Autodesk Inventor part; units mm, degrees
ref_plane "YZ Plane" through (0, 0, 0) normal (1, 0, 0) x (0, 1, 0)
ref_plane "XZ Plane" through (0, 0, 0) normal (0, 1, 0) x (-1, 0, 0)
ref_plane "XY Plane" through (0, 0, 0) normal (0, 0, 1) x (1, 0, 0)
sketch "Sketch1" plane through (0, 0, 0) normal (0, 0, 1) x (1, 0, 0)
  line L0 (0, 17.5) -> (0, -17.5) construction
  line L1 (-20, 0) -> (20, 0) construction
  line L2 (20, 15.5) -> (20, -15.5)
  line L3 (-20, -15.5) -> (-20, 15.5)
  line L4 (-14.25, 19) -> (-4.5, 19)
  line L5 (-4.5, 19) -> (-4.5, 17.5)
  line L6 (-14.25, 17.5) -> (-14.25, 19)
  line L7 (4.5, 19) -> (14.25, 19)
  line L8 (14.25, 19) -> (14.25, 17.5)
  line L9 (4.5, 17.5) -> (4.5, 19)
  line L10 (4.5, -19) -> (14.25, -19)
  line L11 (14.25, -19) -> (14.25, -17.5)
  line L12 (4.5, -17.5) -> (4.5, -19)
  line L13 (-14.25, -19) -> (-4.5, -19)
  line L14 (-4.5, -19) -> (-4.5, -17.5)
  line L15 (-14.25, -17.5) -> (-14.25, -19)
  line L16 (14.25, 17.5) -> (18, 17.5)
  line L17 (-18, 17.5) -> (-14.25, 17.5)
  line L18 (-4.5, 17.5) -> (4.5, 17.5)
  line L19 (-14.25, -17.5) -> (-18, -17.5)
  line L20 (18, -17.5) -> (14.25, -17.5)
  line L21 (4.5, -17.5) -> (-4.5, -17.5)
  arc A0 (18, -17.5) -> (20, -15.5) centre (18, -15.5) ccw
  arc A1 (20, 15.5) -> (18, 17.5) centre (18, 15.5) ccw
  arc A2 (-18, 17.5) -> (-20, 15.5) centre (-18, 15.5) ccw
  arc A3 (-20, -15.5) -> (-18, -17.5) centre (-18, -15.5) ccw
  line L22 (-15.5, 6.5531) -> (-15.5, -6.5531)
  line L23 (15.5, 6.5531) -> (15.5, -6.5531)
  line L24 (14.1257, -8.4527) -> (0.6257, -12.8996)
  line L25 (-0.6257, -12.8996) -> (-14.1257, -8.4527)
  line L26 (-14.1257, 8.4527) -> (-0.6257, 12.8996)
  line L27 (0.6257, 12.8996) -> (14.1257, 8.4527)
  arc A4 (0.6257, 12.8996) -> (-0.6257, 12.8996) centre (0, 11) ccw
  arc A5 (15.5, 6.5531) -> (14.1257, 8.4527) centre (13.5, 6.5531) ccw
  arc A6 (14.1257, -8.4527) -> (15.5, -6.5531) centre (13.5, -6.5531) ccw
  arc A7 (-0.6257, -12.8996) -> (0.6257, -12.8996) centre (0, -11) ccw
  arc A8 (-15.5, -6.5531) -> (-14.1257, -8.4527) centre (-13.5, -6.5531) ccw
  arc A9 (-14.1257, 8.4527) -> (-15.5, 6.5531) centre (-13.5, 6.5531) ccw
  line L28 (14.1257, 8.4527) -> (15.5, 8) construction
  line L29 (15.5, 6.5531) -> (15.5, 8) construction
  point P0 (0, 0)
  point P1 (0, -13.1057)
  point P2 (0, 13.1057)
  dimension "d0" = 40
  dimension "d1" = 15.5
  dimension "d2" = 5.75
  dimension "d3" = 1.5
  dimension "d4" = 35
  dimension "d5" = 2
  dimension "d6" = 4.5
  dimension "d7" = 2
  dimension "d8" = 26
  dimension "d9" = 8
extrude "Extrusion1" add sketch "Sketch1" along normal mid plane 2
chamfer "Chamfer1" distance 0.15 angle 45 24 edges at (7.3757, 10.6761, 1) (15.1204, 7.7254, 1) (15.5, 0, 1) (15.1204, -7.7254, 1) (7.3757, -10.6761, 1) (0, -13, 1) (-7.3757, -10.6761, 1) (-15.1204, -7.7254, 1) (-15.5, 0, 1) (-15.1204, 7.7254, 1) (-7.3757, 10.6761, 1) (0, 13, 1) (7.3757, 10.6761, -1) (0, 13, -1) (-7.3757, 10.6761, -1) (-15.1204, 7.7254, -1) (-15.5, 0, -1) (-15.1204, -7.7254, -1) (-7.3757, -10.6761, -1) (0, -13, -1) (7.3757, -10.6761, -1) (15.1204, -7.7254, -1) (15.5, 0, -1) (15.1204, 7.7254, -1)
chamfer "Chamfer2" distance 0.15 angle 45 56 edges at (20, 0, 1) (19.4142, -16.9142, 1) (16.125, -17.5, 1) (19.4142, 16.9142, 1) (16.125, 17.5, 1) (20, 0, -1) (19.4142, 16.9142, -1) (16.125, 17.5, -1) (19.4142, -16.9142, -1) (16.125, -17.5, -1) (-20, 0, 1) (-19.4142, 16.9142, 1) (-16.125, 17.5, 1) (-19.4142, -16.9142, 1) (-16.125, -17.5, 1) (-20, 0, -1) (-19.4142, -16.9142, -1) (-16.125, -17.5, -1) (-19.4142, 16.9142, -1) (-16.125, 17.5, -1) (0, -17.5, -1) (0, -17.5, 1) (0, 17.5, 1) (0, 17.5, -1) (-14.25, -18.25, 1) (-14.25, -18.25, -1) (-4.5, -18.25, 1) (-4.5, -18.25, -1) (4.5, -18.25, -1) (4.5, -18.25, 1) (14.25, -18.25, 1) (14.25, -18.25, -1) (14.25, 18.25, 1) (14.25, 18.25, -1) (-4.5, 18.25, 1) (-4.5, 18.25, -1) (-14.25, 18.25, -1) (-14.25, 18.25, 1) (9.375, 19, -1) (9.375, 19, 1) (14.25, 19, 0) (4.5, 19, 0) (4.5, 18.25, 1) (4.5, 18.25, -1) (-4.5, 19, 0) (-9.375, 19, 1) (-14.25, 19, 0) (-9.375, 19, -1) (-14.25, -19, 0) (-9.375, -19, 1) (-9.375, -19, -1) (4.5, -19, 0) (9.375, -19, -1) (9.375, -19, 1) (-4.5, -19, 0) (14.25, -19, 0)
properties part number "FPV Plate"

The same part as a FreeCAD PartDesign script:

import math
import FreeCAD as App
import Part
import Sketcher
from FreeCAD import Vector
Q = App.Units.Quantity


def edges_at(feature, points):
    """Names of the edges that pass closest to the given points."""
    edges = feature.Shape.Edges
    near = lambda p: min(range(len(edges)), key=lambda i: edges[i].distToShape(Part.Vertex(*p))[0])
    return sorted({f"Edge{near(p) + 1}" for p in points})

doc = App.newDocument("Part")
body = doc.addObject("PartDesign::Body", "Body")

sketch1 = doc.addObject("Sketcher::SketchObject", "Sketch")
body.addObject(sketch1)
sketch1.AttachmentSupport = (doc.XY_Plane, [""])
sketch1.MapMode = "FlatFace"
sketch1.addGeometry([
    Part.LineSegment(Vector(20, -15.5, 0), Vector(20, 15.5, 0)),
    Part.ArcOfCircle(Part.Circle(Vector(18, 15.5, 0), Vector(0, 0, 1), 2), math.radians(0), math.radians(90)),
    Part.LineSegment(Vector(18, 17.5, 0), Vector(14.2, 17.5, 0)),
    Part.LineSegment(Vector(14.2, 17.5, 0), Vector(14.2, 19, 0)),
    Part.LineSegment(Vector(14.2, 19, 0), Vector(4.5, 19, 0)),
    Part.LineSegment(Vector(4.5, 19, 0), Vector(4.5, 17.5, 0)),
    Part.LineSegment(Vector(4.5, 17.5, 0), Vector(-4.5, 17.5, 0)),
    Part.LineSegment(Vector(-4.5, 17.5, 0), Vector(-4.5, 19, 0)),
    Part.LineSegment(Vector(-4.5, 19, 0), Vector(-14.2, 19, 0)),
    Part.LineSegment(Vector(-14.2, 19, 0), Vector(-14.2, 17.5, 0)),
    Part.LineSegment(Vector(-14.2, 17.5, 0), Vector(-18, 17.5, 0)),
    Part.ArcOfCircle(Part.Circle(Vector(-18, 15.5, 0), Vector(0, 0, 1), 2), math.radians(90), math.radians(180)),
    Part.LineSegment(Vector(-20, 15.5, 0), Vector(-20, -15.5, 0)),
    Part.ArcOfCircle(Part.Circle(Vector(-18, -15.5, 0), Vector(0, 0, 1), 2), math.radians(180), math.radians(270)),
    Part.LineSegment(Vector(-18, -17.5, 0), Vector(-14.2, -17.5, 0)),
    Part.LineSegment(Vector(-14.2, -17.5, 0), Vector(-14.2, -19, 0)),
    Part.LineSegment(Vector(-14.2, -19, 0), Vector(-4.5, -19, 0)),
    Part.LineSegment(Vector(-4.5, -19, 0), Vector(-4.5, -17.5, 0)),
    Part.LineSegment(Vector(-4.5, -17.5, 0), Vector(4.5, -17.5, 0)),
    Part.LineSegment(Vector(4.5, -17.5, 0), Vector(4.5, -19, 0)),
    Part.LineSegment(Vector(4.5, -19, 0), Vector(14.2, -19, 0)),
    Part.LineSegment(Vector(14.2, -19, 0), Vector(14.2, -17.5, 0)),
    Part.LineSegment(Vector(14.2, -17.5, 0), Vector(18, -17.5, 0)),
    Part.ArcOfCircle(Part.Circle(Vector(18, -15.5, 0), Vector(0, 0, 1), 2), math.radians(-90), math.radians(0)),
    Part.LineSegment(Vector(-15.5, -6.6, 0), Vector(-15.5, 6.6, 0)),
    Part.ArcOfCircle(Part.Circle(Vector(-13.5, 6.6, 0), Vector(0, 0, 1), 2), math.radians(108), math.radians(180)),
    Part.LineSegment(Vector(-14.1, 8.5, 0), Vector(-0.6, 12.9, 0)),
    Part.ArcOfCircle(Part.Circle(Vector(0, 11, 0), Vector(0, 0, 1), 2), math.radians(72), math.radians(108)),
    Part.LineSegment(Vector(0.6, 12.9, 0), Vector(14.1, 8.5, 0)),
    Part.ArcOfCircle(Part.Circle(Vector(13.5, 6.6, 0), Vector(0, 0, 1), 2), math.radians(0), math.radians(72)),
    Part.LineSegment(Vector(15.5, 6.6, 0), Vector(15.5, -6.6, 0)),
    Part.ArcOfCircle(Part.Circle(Vector(13.5, -6.6, 0), Vector(0, 0, 1), 2), math.radians(-72), math.radians(0)),
    Part.LineSegment(Vector(14.1, -8.5, 0), Vector(0.6, -12.9, 0)),
    Part.ArcOfCircle(Part.Circle(Vector(0, -11, 0), Vector(0, 0, 1), 2), math.radians(-108), math.radians(-72)),
    Part.LineSegment(Vector(-0.6, -12.9, 0), Vector(-14.1, -8.5, 0)),
    Part.ArcOfCircle(Part.Circle(Vector(-13.5, -6.6, 0), Vector(0, 0, 1), 2), math.radians(180), math.radians(252)),
], False)
sketch1.addConstraint([
    Sketcher.Constraint("Tangent", 0, 2, 1, 1),
    Sketcher.Constraint("Tangent", 1, 2, 2, 1),
    Sketcher.Constraint("Coincident", 2, 2, 3, 1),
    Sketcher.Constraint("Coincident", 3, 2, 4, 1),
    Sketcher.Constraint("Coincident", 4, 2, 5, 1),
    Sketcher.Constraint("Coincident", 5, 2, 6, 1),
    Sketcher.Constraint("Coincident", 6, 2, 7, 1),
    Sketcher.Constraint("Coincident", 7, 2, 8, 1),
    Sketcher.Constraint("Coincident", 8, 2, 9, 1),
    Sketcher.Constraint("Coincident", 9, 2, 10, 1),
    Sketcher.Constraint("Tangent", 10, 2, 11, 1),
    Sketcher.Constraint("Tangent", 11, 2, 12, 1),
    Sketcher.Constraint("Tangent", 12, 2, 13, 1),
    Sketcher.Constraint("Tangent", 13, 2, 14, 1),
    Sketcher.Constraint("Coincident", 14, 2, 15, 1),
    Sketcher.Constraint("Coincident", 15, 2, 16, 1),
    Sketcher.Constraint("Coincident", 16, 2, 17, 1),
    Sketcher.Constraint("Coincident", 17, 2, 18, 1),
    Sketcher.Constraint("Coincident", 18, 2, 19, 1),
    Sketcher.Constraint("Coincident", 19, 2, 20, 1),
    Sketcher.Constraint("Coincident", 20, 2, 21, 1),
    Sketcher.Constraint("Coincident", 21, 2, 22, 1),
    Sketcher.Constraint("Tangent", 22, 2, 23, 1),
    Sketcher.Constraint("Tangent", 23, 2, 0, 1),
    Sketcher.Constraint("Tangent", 24, 2, 25, 2),
    Sketcher.Constraint("Tangent", 25, 1, 26, 1),
    Sketcher.Constraint("Tangent", 26, 2, 27, 2),
    Sketcher.Constraint("Tangent", 27, 1, 28, 1),
    Sketcher.Constraint("Tangent", 28, 2, 29, 2),
    Sketcher.Constraint("Tangent", 29, 1, 30, 1),
    Sketcher.Constraint("Tangent", 30, 2, 31, 2),
    Sketcher.Constraint("Tangent", 31, 1, 32, 1),
    Sketcher.Constraint("Tangent", 32, 2, 33, 2),
    Sketcher.Constraint("Tangent", 33, 1, 34, 1),
    Sketcher.Constraint("Tangent", 34, 2, 35, 2),
    Sketcher.Constraint("Tangent", 35, 1, 24, 1),
    Sketcher.Constraint("Vertical", 0),
    Sketcher.Constraint("Horizontal", 2),
    Sketcher.Constraint("Vertical", 3),
    Sketcher.Constraint("Horizontal", 4),
    Sketcher.Constraint("Vertical", 5),
    Sketcher.Constraint("Horizontal", 6),
    Sketcher.Constraint("Vertical", 7),
    Sketcher.Constraint("Horizontal", 8),
    Sketcher.Constraint("Vertical", 9),
    Sketcher.Constraint("Horizontal", 10),
    Sketcher.Constraint("Vertical", 12),
    Sketcher.Constraint("Horizontal", 14),
    Sketcher.Constraint("Vertical", 15),
    Sketcher.Constraint("Horizontal", 16),
    Sketcher.Constraint("Vertical", 17),
    Sketcher.Constraint("Horizontal", 18),
    Sketcher.Constraint("Vertical", 19),
    Sketcher.Constraint("Horizontal", 20),
    Sketcher.Constraint("Vertical", 21),
    Sketcher.Constraint("Horizontal", 22),
    Sketcher.Constraint("Vertical", 24),
    Sketcher.Constraint("Vertical", 30),
    Sketcher.Constraint("Equal", 1, 11),
    Sketcher.Constraint("Equal", 11, 13),
    Sketcher.Constraint("Equal", 13, 23),
    Sketcher.Constraint("Equal", 23, 25),
    Sketcher.Constraint("Equal", 25, 27),
    Sketcher.Constraint("Equal", 27, 29),
    Sketcher.Constraint("Equal", 29, 31),
    Sketcher.Constraint("Equal", 31, 33),
    Sketcher.Constraint("Equal", 33, 35),
    Sketcher.Constraint("Symmetric", 1, 3, 13, 3, -1, 1),
    Sketcher.Constraint("Symmetric", 25, 3, 31, 3, -1, 1),
    Sketcher.Constraint("Symmetric", 27, 3, 33, 3, -1, 1),
    Sketcher.Constraint("Symmetric", 3, 2, 15, 2, -1, 1),
    Sketcher.Constraint("Symmetric", 5, 2, 17, 2, -1, 1),
    Sketcher.Constraint("Symmetric", 7, 2, 19, 2, -1, 1),
    Sketcher.Constraint("Symmetric", 9, 2, 21, 2, -1, 1),
    Sketcher.Constraint("Symmetric", 4, 2, 7, 2, -2),
    Sketcher.Constraint("Symmetric", 2, 2, 9, 2, -2),
    Sketcher.Constraint("Symmetric", 26, 2, 27, 1, -2),
    Sketcher.Constraint("Parallel", 28, 34),
    Sketcher.Constraint("Horizontal", 2, 2, 5, 2),
    Sketcher.Constraint("Radius", 1, Q("2 mm")),
    Sketcher.Constraint("DistanceY", 3, 1, 3, 2, Q("1.5 mm")),
    Sketcher.Constraint("DistanceY", 27, 3, 4, 2, Q("8 mm")),
    Sketcher.Constraint("DistanceY", -1, 1, 1, 3, Q("15.5 mm")),
    Sketcher.Constraint("DistanceX", -1, 1, 4, 2, Q("4.5 mm")),
    Sketcher.Constraint("DistanceX", 24, 2, -1, 1, Q("15.5 mm")),
    Sketcher.Constraint("DistanceX", 11, 3, 25, 3, Q("4.5 mm")),
    Sketcher.Constraint("DistanceX", 2, 2, 0, 2, Q("5.75 mm")),
    Sketcher.Constraint("DistanceY", 24, 1, 24, 2, Q("13.1062 mm")),
])
pad1 = doc.addObject("PartDesign::Pad", "Pad")
body.addObject(pad1)
pad1.Profile = sketch1
pad1.Length = 2
pad1.Midplane = True
doc.recompute()

chamfer = doc.addObject("PartDesign::Chamfer", "Chamfer")
body.addObject(chamfer)
chamfer.Base = (pad1, edges_at(pad1, [
    (7.376, 10.676, 1),
    (15.12, 7.725, 1),
    (15.5, 0, 1),
    (15.12, -7.725, 1),
    (7.376, -10.676, 1),
    (0, -13, 1),
    (-7.376, -10.676, 1),
    (-15.12, -7.725, 1),
    (-15.5, 0, 1),
    (-15.12, 7.725, 1),
    (-7.376, 10.676, 1),
    (0, 13, 1),
    (7.376, 10.676, -1),
    (0, 13, -1),
    (-7.376, 10.676, -1),
    (-15.12, 7.725, -1),
    (-15.5, 0, -1),
    (-15.12, -7.725, -1),
    (-7.376, -10.676, -1),
    (0, -13, -1),
    (7.376, -10.676, -1),
    (15.12, -7.725, -1),
    (15.5, 0, -1),
    (15.12, 7.725, -1),
]))
chamfer.Size = 0.15
doc.recompute()

chamfer2 = doc.addObject("PartDesign::Chamfer", "Chamfer001")
body.addObject(chamfer2)
chamfer2.Base = (chamfer, edges_at(chamfer, [
    (20, 0, 1),
    (19.414, -16.914, 1),
    (16.125, -17.5, 1),
    (19.414, 16.914, 1),
    (16.125, 17.5, 1),
    (20, 0, -1),
    (19.414, 16.914, -1),
    (16.125, 17.5, -1),
    (19.414, -16.914, -1),
    (16.125, -17.5, -1),
    (-20, 0, 1),
    (-19.414, 16.914, 1),
    (-16.125, 17.5, 1),
    (-19.414, -16.914, 1),
    (-16.125, -17.5, 1),
    (-20, 0, -1),
    (-19.414, -16.914, -1),
    (-16.125, -17.5, -1),
    (-19.414, 16.914, -1),
    (-16.125, 17.5, -1),
    (0, -17.5, -1),
    (0, -17.5, 1),
    (0, 17.5, 1),
    (0, 17.5, -1),
    (-14.25, -18.25, 1),
    (-14.25, -18.25, -1),
    (-4.5, -18.25, 1),
    (-4.5, -18.25, -1),
    (4.5, -18.25, -1),
    (4.5, -18.25, 1),
    (14.25, -18.25, 1),
    (14.25, -18.25, -1),
    (14.25, 18.25, 1),
    (14.25, 18.25, -1),
    (-4.5, 18.25, 1),
    (-4.5, 18.25, -1),
    (-14.25, 18.25, -1),
    (-14.25, 18.25, 1),
    (9.375, 19, -1),
    (9.375, 19, 1),
    (14.25, 19, 0),
    (4.5, 19, 0),
    (4.5, 18.25, 1),
    (4.5, 18.25, -1),
    (-4.5, 19, 0),
    (-9.375, 19, 1),
    (-14.25, 19, 0),
    (-9.375, 19, -1),
    (-14.25, -19, 0),
    (-9.375, -19, 1),
    (-9.375, -19, -1),
    (4.5, -19, 0),
    (9.375, -19, -1),
    (9.375, -19, 1),
    (-4.5, -19, 0),
    (14.25, -19, 0),
]))
chamfer2.Size = 0.15

doc.recompute()
